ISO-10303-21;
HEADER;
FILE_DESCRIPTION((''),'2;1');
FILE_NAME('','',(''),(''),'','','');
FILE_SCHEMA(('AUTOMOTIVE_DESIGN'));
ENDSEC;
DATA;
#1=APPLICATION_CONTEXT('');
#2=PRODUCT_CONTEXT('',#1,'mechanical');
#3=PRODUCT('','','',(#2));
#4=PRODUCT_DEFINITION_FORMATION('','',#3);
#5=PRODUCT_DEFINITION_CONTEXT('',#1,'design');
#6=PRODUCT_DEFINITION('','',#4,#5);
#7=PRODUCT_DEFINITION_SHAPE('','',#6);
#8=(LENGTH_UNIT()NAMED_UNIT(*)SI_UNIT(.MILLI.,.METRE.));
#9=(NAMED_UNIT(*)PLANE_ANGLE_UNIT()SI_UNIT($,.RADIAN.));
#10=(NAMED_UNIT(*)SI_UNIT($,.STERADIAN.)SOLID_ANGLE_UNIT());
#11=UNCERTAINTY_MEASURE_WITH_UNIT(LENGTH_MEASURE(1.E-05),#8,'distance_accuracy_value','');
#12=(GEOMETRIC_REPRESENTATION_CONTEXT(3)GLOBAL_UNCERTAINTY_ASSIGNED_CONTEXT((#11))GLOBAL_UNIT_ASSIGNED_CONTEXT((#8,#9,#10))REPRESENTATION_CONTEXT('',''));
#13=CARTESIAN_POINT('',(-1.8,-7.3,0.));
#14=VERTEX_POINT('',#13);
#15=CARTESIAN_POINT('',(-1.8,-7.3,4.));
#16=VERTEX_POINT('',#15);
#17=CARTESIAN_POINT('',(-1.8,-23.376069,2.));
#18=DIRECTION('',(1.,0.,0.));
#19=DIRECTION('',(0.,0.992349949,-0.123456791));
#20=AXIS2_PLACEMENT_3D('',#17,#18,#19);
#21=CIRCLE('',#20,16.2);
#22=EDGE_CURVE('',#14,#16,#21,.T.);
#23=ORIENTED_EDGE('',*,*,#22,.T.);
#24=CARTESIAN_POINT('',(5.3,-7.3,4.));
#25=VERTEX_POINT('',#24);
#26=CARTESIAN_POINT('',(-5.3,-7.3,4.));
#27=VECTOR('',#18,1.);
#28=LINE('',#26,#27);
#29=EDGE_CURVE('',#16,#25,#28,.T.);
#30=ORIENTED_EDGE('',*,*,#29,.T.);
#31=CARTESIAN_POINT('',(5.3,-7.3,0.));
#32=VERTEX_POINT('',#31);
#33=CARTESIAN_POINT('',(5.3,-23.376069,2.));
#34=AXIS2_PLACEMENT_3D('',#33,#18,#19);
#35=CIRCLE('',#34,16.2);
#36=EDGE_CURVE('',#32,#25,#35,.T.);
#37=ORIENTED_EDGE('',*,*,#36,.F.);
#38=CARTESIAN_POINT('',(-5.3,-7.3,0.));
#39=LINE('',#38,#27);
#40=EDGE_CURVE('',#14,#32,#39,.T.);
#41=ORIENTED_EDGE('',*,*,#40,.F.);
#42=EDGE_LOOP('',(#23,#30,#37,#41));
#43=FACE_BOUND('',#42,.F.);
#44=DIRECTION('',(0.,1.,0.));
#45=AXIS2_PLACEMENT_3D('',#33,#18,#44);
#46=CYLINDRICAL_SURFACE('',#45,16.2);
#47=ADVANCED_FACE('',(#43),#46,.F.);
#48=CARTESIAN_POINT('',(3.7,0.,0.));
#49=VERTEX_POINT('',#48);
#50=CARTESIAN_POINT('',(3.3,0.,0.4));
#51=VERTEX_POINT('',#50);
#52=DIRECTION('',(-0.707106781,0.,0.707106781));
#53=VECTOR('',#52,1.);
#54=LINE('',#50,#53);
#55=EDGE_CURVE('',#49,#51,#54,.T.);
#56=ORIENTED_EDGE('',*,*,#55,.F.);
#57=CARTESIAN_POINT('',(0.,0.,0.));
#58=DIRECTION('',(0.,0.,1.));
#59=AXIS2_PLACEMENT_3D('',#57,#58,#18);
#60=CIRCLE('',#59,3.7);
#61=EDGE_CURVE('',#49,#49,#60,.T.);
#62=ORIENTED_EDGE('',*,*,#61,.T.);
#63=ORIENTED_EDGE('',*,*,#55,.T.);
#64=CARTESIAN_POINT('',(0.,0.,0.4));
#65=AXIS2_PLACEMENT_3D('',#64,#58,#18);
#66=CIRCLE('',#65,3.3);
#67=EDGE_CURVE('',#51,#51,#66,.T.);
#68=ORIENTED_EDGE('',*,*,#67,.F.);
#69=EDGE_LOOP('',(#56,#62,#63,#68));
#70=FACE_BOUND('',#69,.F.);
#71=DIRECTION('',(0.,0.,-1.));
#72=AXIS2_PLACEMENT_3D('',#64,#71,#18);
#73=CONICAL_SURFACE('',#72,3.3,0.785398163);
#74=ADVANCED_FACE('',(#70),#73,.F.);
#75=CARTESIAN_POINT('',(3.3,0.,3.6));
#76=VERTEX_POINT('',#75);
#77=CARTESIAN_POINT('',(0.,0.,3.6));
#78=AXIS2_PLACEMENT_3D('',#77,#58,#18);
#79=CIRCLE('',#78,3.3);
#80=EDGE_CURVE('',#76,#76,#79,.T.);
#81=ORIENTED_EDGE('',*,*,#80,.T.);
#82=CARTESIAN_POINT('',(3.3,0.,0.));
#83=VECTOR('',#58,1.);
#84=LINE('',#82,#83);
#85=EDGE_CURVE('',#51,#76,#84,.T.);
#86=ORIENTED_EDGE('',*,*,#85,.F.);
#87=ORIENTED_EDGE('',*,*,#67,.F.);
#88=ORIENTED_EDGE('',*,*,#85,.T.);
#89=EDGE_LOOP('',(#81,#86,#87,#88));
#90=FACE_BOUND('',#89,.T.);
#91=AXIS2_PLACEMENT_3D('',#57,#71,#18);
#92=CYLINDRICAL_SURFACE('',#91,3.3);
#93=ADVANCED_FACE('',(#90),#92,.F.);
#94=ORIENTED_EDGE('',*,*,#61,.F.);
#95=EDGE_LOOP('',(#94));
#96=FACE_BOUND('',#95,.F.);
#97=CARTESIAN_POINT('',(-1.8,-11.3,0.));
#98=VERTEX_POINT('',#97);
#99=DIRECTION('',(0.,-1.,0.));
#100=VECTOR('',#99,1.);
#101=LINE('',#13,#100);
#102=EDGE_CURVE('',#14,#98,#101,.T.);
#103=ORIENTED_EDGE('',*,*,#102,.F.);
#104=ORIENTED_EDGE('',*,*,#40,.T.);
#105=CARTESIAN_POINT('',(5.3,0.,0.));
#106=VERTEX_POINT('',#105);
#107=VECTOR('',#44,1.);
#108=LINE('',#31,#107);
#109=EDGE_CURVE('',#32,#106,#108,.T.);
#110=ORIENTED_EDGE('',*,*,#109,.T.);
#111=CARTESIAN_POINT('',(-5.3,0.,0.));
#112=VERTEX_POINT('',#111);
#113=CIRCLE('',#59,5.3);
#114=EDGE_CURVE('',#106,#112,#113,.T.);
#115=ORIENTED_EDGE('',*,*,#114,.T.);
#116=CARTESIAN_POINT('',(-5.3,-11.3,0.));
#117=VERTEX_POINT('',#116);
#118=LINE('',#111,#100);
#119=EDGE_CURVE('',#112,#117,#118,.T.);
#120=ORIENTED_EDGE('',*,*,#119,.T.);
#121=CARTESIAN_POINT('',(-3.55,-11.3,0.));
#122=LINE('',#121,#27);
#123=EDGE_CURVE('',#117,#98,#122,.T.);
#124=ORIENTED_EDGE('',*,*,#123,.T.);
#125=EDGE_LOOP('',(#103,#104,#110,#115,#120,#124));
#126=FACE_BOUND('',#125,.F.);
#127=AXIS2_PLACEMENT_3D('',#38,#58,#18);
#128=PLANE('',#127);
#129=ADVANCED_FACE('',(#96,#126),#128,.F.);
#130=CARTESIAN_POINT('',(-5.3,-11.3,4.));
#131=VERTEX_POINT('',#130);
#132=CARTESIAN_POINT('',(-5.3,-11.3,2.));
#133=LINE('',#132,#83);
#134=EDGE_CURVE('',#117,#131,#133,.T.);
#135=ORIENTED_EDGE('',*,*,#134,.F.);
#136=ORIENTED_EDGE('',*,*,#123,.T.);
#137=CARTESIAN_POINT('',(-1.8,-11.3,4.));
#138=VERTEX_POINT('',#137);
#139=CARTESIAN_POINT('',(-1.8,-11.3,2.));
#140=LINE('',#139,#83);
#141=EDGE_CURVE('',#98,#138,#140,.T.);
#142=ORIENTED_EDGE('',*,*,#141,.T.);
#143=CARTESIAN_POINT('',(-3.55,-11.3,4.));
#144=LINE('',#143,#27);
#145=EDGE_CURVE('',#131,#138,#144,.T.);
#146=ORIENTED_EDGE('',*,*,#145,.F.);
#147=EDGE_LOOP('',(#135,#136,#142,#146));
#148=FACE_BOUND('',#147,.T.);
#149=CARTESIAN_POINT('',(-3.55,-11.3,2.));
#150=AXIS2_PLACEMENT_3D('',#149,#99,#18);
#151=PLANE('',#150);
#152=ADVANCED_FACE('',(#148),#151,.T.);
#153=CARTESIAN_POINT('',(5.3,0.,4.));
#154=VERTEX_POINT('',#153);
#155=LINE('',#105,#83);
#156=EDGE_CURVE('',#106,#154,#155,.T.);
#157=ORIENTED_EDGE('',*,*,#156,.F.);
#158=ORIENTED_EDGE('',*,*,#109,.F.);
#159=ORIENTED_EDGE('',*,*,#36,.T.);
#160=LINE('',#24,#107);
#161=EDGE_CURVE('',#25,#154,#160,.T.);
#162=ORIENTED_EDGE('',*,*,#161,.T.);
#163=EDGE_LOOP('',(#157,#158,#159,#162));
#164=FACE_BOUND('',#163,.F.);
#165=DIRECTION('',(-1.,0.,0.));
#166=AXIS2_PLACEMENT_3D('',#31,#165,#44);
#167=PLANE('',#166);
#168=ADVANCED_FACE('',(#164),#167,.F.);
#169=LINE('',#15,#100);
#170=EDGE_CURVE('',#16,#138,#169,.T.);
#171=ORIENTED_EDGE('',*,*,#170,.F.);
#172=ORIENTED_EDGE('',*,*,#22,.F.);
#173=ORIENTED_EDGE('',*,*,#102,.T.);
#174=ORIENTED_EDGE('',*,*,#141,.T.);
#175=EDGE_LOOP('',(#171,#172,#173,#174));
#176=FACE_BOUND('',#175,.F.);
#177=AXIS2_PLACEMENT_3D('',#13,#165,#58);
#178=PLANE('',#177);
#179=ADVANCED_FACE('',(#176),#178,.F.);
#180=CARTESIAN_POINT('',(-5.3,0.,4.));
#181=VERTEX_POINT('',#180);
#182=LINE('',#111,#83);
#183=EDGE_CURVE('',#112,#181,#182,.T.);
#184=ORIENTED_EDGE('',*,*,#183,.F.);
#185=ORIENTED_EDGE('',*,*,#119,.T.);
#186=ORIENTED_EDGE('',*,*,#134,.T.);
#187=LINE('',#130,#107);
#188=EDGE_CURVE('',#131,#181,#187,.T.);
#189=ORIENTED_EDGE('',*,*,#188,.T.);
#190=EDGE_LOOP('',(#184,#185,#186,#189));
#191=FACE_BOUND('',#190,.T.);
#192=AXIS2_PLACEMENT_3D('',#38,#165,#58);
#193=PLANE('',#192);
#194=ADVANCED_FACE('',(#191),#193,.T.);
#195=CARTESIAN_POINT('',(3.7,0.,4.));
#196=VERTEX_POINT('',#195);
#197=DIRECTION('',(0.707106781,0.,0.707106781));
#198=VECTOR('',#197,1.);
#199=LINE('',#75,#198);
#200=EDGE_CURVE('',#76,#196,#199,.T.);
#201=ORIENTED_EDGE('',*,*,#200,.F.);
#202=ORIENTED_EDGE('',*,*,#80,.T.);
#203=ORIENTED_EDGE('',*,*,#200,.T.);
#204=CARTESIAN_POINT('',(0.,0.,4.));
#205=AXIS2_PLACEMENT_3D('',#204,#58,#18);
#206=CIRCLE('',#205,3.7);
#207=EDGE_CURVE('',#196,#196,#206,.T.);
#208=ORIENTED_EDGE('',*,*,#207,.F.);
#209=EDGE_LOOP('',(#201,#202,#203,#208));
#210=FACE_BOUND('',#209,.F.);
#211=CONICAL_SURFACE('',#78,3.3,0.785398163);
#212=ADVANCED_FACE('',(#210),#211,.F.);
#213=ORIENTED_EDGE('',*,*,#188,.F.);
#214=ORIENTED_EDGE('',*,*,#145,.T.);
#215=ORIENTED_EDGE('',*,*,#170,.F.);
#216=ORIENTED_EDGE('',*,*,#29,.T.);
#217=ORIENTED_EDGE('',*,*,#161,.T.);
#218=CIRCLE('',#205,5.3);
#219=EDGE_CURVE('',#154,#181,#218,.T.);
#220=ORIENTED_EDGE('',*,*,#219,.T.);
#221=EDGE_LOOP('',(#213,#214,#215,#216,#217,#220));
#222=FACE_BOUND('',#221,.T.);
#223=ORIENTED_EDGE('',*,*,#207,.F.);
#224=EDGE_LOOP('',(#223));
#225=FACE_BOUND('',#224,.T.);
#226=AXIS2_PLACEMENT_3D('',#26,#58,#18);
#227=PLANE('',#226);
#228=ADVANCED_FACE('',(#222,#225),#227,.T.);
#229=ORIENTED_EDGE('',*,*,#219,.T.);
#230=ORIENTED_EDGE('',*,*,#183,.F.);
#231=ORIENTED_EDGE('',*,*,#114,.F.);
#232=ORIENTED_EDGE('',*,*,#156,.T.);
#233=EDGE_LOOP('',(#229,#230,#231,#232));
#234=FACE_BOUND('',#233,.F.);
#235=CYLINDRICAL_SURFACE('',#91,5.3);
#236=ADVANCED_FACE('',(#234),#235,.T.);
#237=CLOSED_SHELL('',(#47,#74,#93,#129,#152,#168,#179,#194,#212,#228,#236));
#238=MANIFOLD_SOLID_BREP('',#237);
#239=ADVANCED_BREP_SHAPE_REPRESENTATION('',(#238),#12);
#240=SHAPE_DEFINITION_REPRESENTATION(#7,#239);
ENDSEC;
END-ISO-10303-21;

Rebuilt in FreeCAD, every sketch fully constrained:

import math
import FreeCAD as App
import Part
import Sketcher

V = App.Vector


def edges_at(feature, points):
    """Names of the edges that pass closest to the given points."""
    edges = feature.Shape.Edges
    near = lambda p: min(range(len(edges)), key=lambda i: edges[i].distToShape(Part.Vertex(*p))[0])
    return sorted({f"Edge{near(p) + 1}" for p in points})

doc = App.newDocument("Part")
body = doc.addObject("PartDesign::Body", "Body")

# Sketch on XY plane
sketch1 = body.newObject("Sketcher::SketchObject", "Sketch")
sketch1.AttachmentSupport = (doc.getObject("XY_Plane"), [""])
sketch1.MapMode = "FlatFace"
sketch1.addGeometry([
    Part.ArcOfCircle(Part.Circle(V(0, 0, 0), V(0, 0, 1), 5.3), math.radians(0), math.radians(180)),  # 0
    Part.LineSegment(V(-5.3, 0, 0), V(-5.3, -7.3, 0)),  # 1
    Part.LineSegment(V(-5.3, -7.3, 0), V(5.3, -7.3, 0)),  # 2
    Part.LineSegment(V(5.3, -7.3, 0), V(5.3, 0, 0)),  # 3
    Part.Circle(V(0, 0, 0), V(0, 0, 1), 3.3),  # 4
], False)
sketch1.addConstraint([
    Sketcher.Constraint("Tangent", 0, 2, 1, 1),
    Sketcher.Constraint("Coincident", 1, 2, 2, 1),
    Sketcher.Constraint("Coincident", 2, 2, 3, 1),
    Sketcher.Constraint("Tangent", 3, 2, 0, 1),
    Sketcher.Constraint("Vertical", 1),
    Sketcher.Constraint("Horizontal", 2),
    Sketcher.Constraint("Vertical", 3),
    Sketcher.Constraint("Coincident", 0, 3, -1, 1),
    Sketcher.Constraint("Coincident", 4, 3, -1, 1),
    Sketcher.Constraint("Diameter", 4, 6.6),
    Sketcher.Constraint("Radius", 0, 5.3),
    Sketcher.Constraint("DistanceY", 1, 2, 1, 1, 7.3),
])
pad1 = body.newObject("PartDesign::Pad", "Pad")
pad1.Profile = sketch1
pad1.Length = 4

# Sketch on XZ plane
sketch2 = body.newObject("Sketcher::SketchObject", "Sketch001")
sketch2.AttachmentSupport = (doc.getObject("XZ_Plane"), [""])
sketch2.MapMode = "FlatFace"
sketch2.AttachmentOffset = App.Placement(V(0, 0, 7.3), App.Rotation())
sketch2.addGeometry([
    Part.LineSegment(V(-5.3, 4, 0), V(-5.3, 0, 0)),
    Part.LineSegment(V(-5.3, 0, 0), V(-1.8, 0, 0)),
    Part.LineSegment(V(-1.8, 0, 0), V(-1.8, 4, 0)),
    Part.LineSegment(V(-1.8, 4, 0), V(-5.3, 4, 0)),
], False)
sketch2.addConstraint([
    Sketcher.Constraint("Coincident", 0, 2, 1, 1),
    Sketcher.Constraint("Coincident", 1, 2, 2, 1),
    Sketcher.Constraint("Coincident", 2, 2, 3, 1),
    Sketcher.Constraint("Coincident", 3, 2, 0, 1),
    Sketcher.Constraint("Vertical", 0),
    Sketcher.Constraint("Horizontal", 1),
    Sketcher.Constraint("Vertical", 2),
    Sketcher.Constraint("Horizontal", 3),
    Sketcher.Constraint("PointOnObject", 0, 2, -1),
    Sketcher.Constraint("DistanceY", 0, 2, 0, 1, 4.0),
    Sketcher.Constraint("DistanceX", 1, 1, 1, 2, 3.5),
    Sketcher.Constraint("DistanceX", 0, 2, -1, 1, 5.3),
])
pad2 = body.newObject("PartDesign::Pad", "Pad001")
pad2.Profile = sketch2
pad2.Length = 4
doc.recompute()

chamfer = body.newObject("PartDesign::Chamfer", "Chamfer")
chamfer.Base = (pad2, edges_at(pad2, [(-3.3, 0, 4), (-3.3, 0, 0)]))
chamfer.Size = 0.4

# Sketch on YZ plane
sketch3 = body.newObject("Sketcher::SketchObject", "Sketch002")
sketch3.AttachmentSupport = (doc.getObject("YZ_Plane"), [""])
sketch3.MapMode = "FlatFace"
sketch3.AttachmentOffset = App.Placement(V(0, 0, 5.3), App.Rotation())
sketch3.addGeometry(Part.Circle(V(-23.376069, 2, 0), V(0, 0, 1), 16.2), False)
sketch3.addConstraint([
    Sketcher.Constraint("Diameter", 0, 32.4),
    Sketcher.Constraint("DistanceY", -1, 1, 0, 3, 2.0),
    Sketcher.Constraint("DistanceX", 0, 3, -1, 1, 23.376069),
])
pocket1 = body.newObject("PartDesign::Pocket", "Pocket")
pocket1.Profile = sketch3
pocket1.Length = 7.1

doc.recompute()
